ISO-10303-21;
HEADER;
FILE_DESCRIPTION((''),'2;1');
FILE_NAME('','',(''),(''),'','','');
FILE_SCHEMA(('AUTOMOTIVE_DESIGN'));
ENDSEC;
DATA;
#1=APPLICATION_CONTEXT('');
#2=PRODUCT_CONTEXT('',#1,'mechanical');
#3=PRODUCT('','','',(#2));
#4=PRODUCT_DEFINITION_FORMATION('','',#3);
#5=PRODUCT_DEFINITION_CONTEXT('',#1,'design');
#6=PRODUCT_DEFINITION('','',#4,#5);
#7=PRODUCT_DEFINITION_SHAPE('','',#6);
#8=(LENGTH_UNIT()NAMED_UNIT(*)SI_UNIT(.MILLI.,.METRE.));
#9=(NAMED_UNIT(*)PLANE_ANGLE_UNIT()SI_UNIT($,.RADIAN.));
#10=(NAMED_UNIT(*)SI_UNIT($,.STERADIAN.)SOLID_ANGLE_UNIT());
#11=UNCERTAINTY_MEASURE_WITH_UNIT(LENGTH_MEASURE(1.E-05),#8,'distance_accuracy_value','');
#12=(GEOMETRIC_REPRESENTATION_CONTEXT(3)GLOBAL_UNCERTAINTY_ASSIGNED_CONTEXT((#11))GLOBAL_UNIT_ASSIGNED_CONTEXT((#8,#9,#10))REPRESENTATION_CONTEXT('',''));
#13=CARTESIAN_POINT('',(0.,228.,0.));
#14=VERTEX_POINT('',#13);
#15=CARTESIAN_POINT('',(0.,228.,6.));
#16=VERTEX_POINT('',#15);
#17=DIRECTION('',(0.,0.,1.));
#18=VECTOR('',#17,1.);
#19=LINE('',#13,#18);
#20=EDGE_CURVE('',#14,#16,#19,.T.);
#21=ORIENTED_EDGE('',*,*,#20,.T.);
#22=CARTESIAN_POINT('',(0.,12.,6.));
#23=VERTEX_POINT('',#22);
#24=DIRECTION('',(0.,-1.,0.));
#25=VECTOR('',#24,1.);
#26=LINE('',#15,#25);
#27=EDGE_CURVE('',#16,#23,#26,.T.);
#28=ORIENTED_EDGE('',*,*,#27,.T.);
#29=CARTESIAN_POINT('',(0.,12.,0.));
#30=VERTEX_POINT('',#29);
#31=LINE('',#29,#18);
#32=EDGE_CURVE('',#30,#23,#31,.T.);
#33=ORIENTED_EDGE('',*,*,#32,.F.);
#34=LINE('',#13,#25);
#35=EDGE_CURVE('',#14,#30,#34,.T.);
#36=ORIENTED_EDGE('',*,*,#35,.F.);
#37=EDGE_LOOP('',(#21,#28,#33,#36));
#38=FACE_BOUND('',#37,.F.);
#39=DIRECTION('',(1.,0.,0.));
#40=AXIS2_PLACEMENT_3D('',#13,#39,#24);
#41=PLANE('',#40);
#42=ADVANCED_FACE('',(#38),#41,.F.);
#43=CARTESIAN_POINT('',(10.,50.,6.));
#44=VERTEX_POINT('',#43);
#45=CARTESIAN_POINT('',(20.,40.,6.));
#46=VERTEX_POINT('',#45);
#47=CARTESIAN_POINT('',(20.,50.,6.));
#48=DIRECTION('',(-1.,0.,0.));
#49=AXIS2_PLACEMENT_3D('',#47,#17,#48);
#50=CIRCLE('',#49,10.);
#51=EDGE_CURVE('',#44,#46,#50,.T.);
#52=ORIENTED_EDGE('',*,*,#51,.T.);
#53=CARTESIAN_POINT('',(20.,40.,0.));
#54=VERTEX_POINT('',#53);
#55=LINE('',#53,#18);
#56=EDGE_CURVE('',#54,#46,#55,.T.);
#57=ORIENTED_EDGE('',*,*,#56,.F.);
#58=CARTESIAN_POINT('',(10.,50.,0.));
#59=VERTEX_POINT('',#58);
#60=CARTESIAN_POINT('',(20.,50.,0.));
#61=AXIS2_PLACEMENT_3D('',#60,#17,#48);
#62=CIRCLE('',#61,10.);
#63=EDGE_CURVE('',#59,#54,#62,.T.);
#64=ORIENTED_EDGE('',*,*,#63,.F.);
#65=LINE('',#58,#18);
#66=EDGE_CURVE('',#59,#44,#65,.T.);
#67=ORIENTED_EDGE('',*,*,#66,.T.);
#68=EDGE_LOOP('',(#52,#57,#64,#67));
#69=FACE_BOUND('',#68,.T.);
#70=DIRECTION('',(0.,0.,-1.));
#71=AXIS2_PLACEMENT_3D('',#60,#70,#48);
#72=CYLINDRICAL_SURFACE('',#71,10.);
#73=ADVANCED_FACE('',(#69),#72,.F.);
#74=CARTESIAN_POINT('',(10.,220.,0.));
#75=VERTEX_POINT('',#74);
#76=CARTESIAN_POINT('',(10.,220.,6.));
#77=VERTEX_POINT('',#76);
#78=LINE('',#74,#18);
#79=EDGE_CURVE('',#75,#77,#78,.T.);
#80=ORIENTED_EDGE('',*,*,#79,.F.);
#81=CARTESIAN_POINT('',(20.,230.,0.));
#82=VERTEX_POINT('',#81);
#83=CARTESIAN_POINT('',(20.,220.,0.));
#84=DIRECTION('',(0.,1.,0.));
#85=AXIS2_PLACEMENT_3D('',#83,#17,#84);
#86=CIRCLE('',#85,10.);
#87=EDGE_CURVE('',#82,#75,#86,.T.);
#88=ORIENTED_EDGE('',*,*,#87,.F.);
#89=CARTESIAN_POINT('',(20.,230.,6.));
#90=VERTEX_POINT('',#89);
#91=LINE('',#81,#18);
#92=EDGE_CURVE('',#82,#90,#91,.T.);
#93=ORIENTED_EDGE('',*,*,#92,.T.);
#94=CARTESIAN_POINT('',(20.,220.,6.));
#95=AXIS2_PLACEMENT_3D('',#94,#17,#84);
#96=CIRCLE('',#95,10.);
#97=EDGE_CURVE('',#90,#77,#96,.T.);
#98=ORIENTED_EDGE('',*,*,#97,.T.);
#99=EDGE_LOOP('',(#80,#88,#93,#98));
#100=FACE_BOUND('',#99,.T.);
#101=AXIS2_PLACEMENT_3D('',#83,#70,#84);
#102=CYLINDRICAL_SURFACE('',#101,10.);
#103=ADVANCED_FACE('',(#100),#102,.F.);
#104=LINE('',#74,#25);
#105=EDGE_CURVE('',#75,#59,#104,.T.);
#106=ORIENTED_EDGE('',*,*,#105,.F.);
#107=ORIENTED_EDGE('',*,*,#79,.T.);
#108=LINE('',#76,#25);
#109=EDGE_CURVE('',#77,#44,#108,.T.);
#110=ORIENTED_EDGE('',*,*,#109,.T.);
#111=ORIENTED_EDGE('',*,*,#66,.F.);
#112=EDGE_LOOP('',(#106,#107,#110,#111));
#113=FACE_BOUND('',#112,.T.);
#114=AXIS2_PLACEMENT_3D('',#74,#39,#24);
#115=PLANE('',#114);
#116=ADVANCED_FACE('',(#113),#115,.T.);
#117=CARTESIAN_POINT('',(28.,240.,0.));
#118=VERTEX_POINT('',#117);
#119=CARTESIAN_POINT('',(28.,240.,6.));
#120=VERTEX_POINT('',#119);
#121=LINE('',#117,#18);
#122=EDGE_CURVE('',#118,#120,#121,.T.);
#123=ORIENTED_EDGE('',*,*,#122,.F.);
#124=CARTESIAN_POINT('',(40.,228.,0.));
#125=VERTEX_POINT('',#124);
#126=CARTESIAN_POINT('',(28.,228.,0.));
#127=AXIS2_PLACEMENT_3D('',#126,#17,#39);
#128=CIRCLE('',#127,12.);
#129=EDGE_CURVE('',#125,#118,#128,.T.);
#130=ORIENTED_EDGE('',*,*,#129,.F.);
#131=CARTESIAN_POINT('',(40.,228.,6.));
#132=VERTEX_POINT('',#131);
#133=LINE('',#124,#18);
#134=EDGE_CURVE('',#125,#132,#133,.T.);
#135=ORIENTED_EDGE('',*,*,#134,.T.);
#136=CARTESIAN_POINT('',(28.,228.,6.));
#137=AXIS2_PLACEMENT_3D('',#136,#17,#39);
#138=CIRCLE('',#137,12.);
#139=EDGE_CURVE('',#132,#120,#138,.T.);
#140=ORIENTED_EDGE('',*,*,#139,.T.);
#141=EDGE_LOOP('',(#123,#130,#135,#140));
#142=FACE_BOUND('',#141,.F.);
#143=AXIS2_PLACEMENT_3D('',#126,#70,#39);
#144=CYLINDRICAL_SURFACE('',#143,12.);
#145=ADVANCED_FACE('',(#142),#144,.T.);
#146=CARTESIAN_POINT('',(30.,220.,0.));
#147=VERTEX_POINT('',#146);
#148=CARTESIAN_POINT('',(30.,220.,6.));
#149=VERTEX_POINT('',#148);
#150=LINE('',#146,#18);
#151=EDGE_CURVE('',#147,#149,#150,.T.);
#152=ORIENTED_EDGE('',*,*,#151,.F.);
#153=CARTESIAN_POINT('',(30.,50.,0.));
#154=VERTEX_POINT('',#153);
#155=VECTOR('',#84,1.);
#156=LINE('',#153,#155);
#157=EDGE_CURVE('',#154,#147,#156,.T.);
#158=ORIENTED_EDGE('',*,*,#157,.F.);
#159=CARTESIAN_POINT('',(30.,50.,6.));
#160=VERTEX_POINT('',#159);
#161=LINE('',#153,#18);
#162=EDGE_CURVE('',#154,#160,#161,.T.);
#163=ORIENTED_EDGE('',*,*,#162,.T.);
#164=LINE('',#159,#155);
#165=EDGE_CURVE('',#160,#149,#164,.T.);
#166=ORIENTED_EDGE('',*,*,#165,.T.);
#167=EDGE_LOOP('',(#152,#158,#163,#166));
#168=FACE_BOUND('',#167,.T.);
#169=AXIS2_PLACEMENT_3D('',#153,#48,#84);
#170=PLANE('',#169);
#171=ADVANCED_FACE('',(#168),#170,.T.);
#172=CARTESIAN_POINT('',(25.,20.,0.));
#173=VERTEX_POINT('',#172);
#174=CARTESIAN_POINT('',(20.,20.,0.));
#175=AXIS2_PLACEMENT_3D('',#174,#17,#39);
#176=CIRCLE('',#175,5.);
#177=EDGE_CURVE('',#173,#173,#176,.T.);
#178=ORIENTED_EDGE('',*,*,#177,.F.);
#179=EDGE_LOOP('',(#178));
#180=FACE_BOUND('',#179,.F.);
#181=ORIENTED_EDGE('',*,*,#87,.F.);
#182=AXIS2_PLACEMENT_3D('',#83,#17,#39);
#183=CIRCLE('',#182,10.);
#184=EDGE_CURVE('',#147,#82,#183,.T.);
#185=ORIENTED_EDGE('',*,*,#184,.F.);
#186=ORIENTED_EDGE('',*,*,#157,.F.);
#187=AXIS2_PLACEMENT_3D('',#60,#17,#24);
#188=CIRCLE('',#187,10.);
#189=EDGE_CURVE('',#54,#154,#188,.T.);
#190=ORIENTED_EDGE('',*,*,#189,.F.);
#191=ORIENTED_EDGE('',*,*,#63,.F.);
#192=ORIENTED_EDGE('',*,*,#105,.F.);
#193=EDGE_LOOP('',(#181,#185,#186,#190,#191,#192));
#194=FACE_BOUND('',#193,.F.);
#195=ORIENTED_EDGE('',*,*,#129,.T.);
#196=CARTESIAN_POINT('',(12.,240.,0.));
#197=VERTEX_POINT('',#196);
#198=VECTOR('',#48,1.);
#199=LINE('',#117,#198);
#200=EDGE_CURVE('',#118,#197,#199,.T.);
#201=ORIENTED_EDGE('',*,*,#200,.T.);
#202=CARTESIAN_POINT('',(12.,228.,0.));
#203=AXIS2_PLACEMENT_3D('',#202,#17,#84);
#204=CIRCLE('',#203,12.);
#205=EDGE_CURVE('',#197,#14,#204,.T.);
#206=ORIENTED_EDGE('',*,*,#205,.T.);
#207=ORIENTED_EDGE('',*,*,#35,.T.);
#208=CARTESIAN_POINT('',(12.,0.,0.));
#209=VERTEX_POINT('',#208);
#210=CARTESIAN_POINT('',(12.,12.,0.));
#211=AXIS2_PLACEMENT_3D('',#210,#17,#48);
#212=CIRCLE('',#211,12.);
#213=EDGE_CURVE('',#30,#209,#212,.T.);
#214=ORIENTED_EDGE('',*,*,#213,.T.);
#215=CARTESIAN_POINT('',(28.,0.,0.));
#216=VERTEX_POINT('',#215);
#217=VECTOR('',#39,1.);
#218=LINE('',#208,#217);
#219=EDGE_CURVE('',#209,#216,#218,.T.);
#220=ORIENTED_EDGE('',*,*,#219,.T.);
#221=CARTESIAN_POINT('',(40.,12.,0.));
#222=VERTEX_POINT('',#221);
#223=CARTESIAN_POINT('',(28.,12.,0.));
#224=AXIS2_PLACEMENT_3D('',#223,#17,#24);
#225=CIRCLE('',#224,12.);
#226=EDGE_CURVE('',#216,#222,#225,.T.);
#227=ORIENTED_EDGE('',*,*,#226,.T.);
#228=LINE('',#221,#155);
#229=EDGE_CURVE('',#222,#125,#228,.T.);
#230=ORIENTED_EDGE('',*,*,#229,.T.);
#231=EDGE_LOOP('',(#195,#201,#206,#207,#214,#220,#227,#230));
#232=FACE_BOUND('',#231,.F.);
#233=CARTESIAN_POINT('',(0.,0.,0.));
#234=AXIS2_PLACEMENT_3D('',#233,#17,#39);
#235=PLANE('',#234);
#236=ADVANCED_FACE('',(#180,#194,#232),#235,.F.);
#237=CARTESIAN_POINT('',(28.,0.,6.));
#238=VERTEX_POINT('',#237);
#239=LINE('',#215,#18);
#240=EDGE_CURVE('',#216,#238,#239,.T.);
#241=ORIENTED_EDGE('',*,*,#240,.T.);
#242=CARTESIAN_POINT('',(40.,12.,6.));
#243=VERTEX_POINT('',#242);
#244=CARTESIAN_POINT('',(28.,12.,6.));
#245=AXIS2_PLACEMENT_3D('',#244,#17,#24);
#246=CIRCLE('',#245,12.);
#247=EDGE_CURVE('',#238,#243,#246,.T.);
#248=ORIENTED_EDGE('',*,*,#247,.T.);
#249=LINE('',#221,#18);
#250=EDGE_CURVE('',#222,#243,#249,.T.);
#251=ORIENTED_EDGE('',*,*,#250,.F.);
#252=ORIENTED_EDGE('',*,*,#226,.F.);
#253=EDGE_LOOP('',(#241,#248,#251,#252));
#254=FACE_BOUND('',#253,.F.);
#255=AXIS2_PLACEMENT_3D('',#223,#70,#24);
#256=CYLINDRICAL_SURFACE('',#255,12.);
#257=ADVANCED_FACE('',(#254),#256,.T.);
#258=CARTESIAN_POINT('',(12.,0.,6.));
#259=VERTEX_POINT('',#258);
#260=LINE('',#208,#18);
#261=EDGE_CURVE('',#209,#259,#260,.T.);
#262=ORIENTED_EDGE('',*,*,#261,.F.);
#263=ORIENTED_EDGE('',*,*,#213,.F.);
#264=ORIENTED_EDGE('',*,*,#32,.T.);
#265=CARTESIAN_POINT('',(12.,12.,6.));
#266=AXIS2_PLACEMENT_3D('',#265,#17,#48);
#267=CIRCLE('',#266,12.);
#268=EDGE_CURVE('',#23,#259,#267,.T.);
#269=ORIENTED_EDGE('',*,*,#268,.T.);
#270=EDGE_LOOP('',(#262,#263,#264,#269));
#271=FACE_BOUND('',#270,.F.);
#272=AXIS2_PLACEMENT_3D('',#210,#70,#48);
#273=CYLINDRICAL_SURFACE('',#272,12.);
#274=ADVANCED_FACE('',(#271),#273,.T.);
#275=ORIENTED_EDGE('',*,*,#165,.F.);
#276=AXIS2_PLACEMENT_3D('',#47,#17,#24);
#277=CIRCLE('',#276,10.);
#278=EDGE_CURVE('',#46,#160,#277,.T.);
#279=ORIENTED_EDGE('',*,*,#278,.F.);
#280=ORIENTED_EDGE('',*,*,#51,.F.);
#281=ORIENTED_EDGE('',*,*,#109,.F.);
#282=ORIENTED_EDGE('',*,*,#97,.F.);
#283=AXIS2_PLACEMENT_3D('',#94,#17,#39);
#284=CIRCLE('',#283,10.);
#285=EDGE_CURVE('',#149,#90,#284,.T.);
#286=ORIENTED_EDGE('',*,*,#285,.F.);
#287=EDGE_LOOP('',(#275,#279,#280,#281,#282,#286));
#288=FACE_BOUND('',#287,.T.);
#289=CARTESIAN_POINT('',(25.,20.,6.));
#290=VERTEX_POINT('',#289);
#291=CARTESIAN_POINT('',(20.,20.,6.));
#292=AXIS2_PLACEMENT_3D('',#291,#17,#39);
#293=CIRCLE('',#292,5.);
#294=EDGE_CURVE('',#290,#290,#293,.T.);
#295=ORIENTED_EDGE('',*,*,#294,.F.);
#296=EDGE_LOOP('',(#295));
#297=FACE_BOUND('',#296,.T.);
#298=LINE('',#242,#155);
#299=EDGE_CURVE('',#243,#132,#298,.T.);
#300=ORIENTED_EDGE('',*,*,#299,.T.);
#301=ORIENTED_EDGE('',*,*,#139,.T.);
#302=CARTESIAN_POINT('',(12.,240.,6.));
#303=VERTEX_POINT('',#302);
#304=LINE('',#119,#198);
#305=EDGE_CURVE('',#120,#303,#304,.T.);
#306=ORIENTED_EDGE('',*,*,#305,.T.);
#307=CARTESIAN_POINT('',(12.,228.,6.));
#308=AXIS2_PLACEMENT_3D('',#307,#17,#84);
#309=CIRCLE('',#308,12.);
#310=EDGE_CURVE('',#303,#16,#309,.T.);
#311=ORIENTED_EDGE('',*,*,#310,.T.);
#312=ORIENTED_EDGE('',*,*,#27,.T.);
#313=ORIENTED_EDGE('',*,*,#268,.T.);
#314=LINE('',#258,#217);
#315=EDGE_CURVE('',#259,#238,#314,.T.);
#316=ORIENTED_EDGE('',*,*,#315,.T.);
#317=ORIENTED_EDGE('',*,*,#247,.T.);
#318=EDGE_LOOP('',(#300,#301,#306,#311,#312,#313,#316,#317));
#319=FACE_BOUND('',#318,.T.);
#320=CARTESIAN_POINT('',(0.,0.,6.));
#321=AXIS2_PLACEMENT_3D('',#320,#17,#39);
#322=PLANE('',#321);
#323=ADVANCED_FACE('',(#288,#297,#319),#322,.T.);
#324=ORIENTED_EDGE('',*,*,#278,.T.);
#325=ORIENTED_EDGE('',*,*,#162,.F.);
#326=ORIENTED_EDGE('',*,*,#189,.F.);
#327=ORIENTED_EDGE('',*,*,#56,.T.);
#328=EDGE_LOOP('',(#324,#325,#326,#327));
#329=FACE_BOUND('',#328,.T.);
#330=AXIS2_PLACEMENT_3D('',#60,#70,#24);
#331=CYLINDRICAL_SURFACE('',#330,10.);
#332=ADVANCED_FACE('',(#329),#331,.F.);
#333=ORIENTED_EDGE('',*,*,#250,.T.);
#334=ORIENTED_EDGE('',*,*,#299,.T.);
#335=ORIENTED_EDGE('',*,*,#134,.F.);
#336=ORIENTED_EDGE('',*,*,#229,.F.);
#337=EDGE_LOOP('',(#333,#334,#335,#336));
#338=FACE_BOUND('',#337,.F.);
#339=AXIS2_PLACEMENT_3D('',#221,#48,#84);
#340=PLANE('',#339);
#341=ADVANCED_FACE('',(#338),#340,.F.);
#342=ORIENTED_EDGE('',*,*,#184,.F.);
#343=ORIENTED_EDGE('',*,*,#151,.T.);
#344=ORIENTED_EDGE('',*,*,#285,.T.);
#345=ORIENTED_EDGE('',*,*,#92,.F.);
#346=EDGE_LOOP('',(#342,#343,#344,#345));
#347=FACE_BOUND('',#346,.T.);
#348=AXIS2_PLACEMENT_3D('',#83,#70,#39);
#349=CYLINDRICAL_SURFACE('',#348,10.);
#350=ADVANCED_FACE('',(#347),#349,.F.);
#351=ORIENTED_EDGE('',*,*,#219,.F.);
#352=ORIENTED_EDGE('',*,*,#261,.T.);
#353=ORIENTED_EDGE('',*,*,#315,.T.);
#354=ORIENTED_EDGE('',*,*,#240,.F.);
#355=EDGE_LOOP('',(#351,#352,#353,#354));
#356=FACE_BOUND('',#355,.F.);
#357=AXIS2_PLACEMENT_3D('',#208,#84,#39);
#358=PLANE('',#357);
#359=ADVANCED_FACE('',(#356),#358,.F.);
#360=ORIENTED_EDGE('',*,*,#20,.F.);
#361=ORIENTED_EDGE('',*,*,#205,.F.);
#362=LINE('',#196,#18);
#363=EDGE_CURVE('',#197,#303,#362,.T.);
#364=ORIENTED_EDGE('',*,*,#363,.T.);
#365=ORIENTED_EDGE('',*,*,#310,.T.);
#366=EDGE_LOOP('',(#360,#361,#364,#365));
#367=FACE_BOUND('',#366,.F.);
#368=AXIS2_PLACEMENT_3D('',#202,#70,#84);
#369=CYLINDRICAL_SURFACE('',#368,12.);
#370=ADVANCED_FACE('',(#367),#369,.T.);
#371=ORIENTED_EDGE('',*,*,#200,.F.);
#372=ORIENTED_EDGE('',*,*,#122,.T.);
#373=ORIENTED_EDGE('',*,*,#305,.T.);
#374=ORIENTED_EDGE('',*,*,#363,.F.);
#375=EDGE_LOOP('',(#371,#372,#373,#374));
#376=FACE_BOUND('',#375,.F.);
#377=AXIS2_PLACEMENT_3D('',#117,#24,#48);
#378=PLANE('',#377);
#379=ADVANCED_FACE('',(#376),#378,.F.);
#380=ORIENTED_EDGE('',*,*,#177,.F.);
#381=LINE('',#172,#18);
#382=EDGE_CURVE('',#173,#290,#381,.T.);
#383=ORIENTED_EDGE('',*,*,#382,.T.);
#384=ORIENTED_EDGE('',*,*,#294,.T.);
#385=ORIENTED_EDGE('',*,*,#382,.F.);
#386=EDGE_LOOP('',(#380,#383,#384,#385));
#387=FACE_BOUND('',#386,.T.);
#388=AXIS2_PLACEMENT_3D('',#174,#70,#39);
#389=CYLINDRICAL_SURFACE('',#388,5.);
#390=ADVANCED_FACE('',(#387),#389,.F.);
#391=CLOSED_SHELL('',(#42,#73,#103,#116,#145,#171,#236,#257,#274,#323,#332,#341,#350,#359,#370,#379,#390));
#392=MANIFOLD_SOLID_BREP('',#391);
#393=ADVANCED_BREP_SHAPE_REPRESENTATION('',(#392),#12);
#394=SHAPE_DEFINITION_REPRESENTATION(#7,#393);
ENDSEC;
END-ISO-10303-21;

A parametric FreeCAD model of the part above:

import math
import FreeCAD as App
import Part
import Sketcher

doc = App.newDocument("Part")
params = doc.addObject("Spreadsheet::Sheet", "Params")
for row, (alias, value) in enumerate([
    ("sketch1_diameter", "10 mm"),
    ("sketch1_radius", "12 mm"),
    ("sketch1_radius2", "10 mm"),
    ("pad1_length", "6 mm"),
], start=1):
    params.set(f"A{row}", alias)
    params.set(f"B{row}", "=" + value)
    params.setAlias(f"B{row}", alias)

body = doc.addObject("PartDesign::Body", "Body")

sketch1 = body.newObject("Sketcher::SketchObject", "Sketch")
sketch1.AttachmentSupport = (doc.getObject("XY_Plane"), [""])
sketch1.MapMode = "FlatFace"
sketch1.addGeometry(Part.ArcOfCircle(Part.Circle(App.Vector(12, 12, 0), App.Vector(0, 0, 1), 12), math.radians(180), math.radians(270)), False)
sketch1.addGeometry(Part.LineSegment(App.Vector(12, 0, 0), App.Vector(28, 0, 0)), False)
sketch1.addGeometry(Part.ArcOfCircle(Part.Circle(App.Vector(28, 12, 0), App.Vector(0, 0, 1), 12), math.radians(-90), math.radians(0)), False)
sketch1.addGeometry(Part.LineSegment(App.Vector(40, 12, 0), App.Vector(40, 228, 0)), False)
sketch1.addGeometry(Part.ArcOfCircle(Part.Circle(App.Vector(28, 228, 0), App.Vector(0, 0, 1), 12), math.radians(0), math.radians(90)), False)
sketch1.addGeometry(Part.LineSegment(App.Vector(28, 240, 0), App.Vector(12, 240, 0)), False)
sketch1.addGeometry(Part.ArcOfCircle(Part.Circle(App.Vector(12, 228, 0), App.Vector(0, 0, 1), 12), math.radians(90), math.radians(180)), False)
sketch1.addGeometry(Part.LineSegment(App.Vector(0, 228, 0), App.Vector(0, 12, 0)), False)
sketch1.addGeometry(Part.Circle(App.Vector(20, 20, 0), App.Vector(0, 0, 1), 5), False)
sketch1.addGeometry(Part.LineSegment(App.Vector(30, 220, 0), App.Vector(30, 50, 0)), False)
sketch1.addGeometry(Part.ArcOfCircle(Part.Circle(App.Vector(20, 50, 0), App.Vector(0, 0, 1), 10), math.radians(180), math.radians(360)), False)
sketch1.addGeometry(Part.LineSegment(App.Vector(10, 50, 0), App.Vector(10, 220, 0)), False)
sketch1.addGeometry(Part.ArcOfCircle(Part.Circle(App.Vector(20, 220, 0), App.Vector(0, 0, 1), 10), math.radians(0), math.radians(180)), False)
sketch1.addConstraint(Sketcher.Constraint("Tangent", 0, 2, 1, 1))
sketch1.addConstraint(Sketcher.Constraint("Tangent", 1, 2, 2, 1))
sketch1.addConstraint(Sketcher.Constraint("Tangent", 2, 2, 3, 1))
sketch1.addConstraint(Sketcher.Constraint("Tangent", 3, 2, 4, 1))
sketch1.addConstraint(Sketcher.Constraint("Tangent", 4, 2, 5, 1))
sketch1.addConstraint(Sketcher.Constraint("Tangent", 5, 2, 6, 1))
sketch1.addConstraint(Sketcher.Constraint("Tangent", 6, 2, 7, 1))
sketch1.addConstraint(Sketcher.Constraint("Tangent", 7, 2, 0, 1))
sketch1.addConstraint(Sketcher.Constraint("Tangent", 9, 2, 10, 2))
sketch1.addConstraint(Sketcher.Constraint("Tangent", 10, 1, 11, 1))
sketch1.addConstraint(Sketcher.Constraint("Tangent", 11, 2, 12, 2))
sketch1.addConstraint(Sketcher.Constraint("Tangent", 12, 1, 9, 1))
sketch1.addConstraint(Sketcher.Constraint("Horizontal", 1))
sketch1.addConstraint(Sketcher.Constraint("Vertical", 3))
sketch1.addConstraint(Sketcher.Constraint("Horizontal", 5))
sketch1.addConstraint(Sketcher.Constraint("Vertical", 7))
sketch1.addConstraint(Sketcher.Constraint("Vertical", 9))
sketch1.addConstraint(Sketcher.Constraint("Vertical", 11))
sketch1.addConstraint(Sketcher.Constraint("Equal", 0, 2))
sketch1.addConstraint(Sketcher.Constraint("Equal", 2, 4))
sketch1.addConstraint(Sketcher.Constraint("Equal", 4, 6))
sketch1.addConstraint(Sketcher.Constraint("PointOnObject", 0, 2, -1))
sketch1.addConstraint(Sketcher.Constraint("PointOnObject", 6, 2, -2))
sketch1.addConstraint(Sketcher.Constraint("Vertical", 8, 3, 10, 3))
sketch1.addConstraint(Sketcher.Constraint("Diameter", 8, 10.0))
sketch1.addConstraint(Sketcher.Constraint("Radius", 0, 12.0))
sketch1.addConstraint(Sketcher.Constraint("Radius", 10, 10.0))
sketch1.addConstraint(Sketcher.Constraint("DistanceX", -1, 1, 8, 3, 20.0))
sketch1.addConstraint(Sketcher.Constraint("DistanceY", -1, 1, 8, 3, 20.0))
sketch1.addConstraint(Sketcher.Constraint("DistanceX", -1, 1, 2, 2, 40.0))
sketch1.addConstraint(Sketcher.Constraint("DistanceY", -1, 1, 4, 2, 240.0))
sketch1.addConstraint(Sketcher.Constraint("DistanceY", 8, 3, 12, 3, 200.0))
sketch1.addConstraint(Sketcher.Constraint("DistanceY", 10, 3, 4, 2, 190.0))
sketch1.setExpression("Constraints[24]", "Params.sketch1_diameter")
sketch1.setExpression("Constraints[25]", "Params.sketch1_radius")
sketch1.setExpression("Constraints[26]", "Params.sketch1_radius2")
pad1 = body.newObject("PartDesign::Pad", "Pad")
pad1.Profile = sketch1
pad1.setExpression("Length", "Params.pad1_length")

doc.recompute()
